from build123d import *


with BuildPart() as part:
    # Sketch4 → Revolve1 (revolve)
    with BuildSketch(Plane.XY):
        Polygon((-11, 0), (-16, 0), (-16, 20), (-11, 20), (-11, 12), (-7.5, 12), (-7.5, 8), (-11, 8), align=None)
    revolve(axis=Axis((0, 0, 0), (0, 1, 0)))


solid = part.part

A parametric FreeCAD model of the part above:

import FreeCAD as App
import Part
import Sketcher

V = App.Vector

doc = App.newDocument("Part")
params = doc.addObject("Spreadsheet::Sheet", "Params")
for row, (alias, value) in enumerate([
    ("sketch1_width", "5 mm"),
    ("sketch1_height", "8 mm"),
    ("sketch1_height2", "4 mm"),
    ("sketch1_width2", "3.5 mm"),
    ("revolution_angle", "360 deg"),
], start=1):
    params.set(f"A{row}", alias)
    params.set(f"B{row}", "=" + value)
    params.setAlias(f"B{row}", alias)

body = doc.addObject("PartDesign::Body", "Body")

sketch1 = body.newObject("Sketcher::SketchObject", "Sketch")
sketch1.AttachmentSupport = (doc.getObject("XY_Plane"), [""])
sketch1.MapMode = "FlatFace"
sketch1.addGeometry(Part.LineSegment(V(-16, 0, 0), V(-11, 0, 0)), False)
sketch1.addGeometry(Part.LineSegment(V(-11, 0, 0), V(-11, 8, 0)), False)
sketch1.addGeometry(Part.LineSegment(V(-11, 8, 0), V(-7.5, 8, 0)), False)
sketch1.addGeometry(Part.LineSegment(V(-7.5, 8, 0), V(-7.5, 12, 0)), False)
sketch1.addGeometry(Part.LineSegment(V(-7.5, 12, 0), V(-11, 12, 0)), False)
sketch1.addGeometry(Part.LineSegment(V(-11, 12, 0), V(-11, 20, 0)), False)
sketch1.addGeometry(Part.LineSegment(V(-11, 20, 0), V(-16, 20, 0)), False)
sketch1.addGeometry(Part.LineSegment(V(-16, 20, 0), V(-16, 0, 0)), False)
sketch1.addConstraint(Sketcher.Constraint("Coincident", 0, 2, 1, 1))
sketch1.addConstraint(Sketcher.Constraint("Coincident", 1, 2, 2, 1))
sketch1.addConstraint(Sketcher.Constraint("Coincident", 2, 2, 3, 1))
sketch1.addConstraint(Sketcher.Constraint("Coincident", 3, 2, 4, 1))
sketch1.addConstraint(Sketcher.Constraint("Coincident", 4, 2, 5, 1))
sketch1.addConstraint(Sketcher.Constraint("Coincident", 5, 2, 6, 1))
sketch1.addConstraint(Sketcher.Constraint("Coincident", 6, 2, 7, 1))
sketch1.addConstraint(Sketcher.Constraint("Coincident", 7, 2, 0, 1))
sketch1.addConstraint(Sketcher.Constraint("Horizontal", 0))
sketch1.addConstraint(Sketcher.Constraint("Vertical", 1))
sketch1.addConstraint(Sketcher.Constraint("Horizontal", 2))
sketch1.addConstraint(Sketcher.Constraint("Vertical", 3))
sketch1.addConstraint(Sketcher.Constraint("Horizontal", 4))
sketch1.addConstraint(Sketcher.Constraint("Vertical", 5))
sketch1.addConstraint(Sketcher.Constraint("Horizontal", 6))
sketch1.addConstraint(Sketcher.Constraint("Vertical", 7))
sketch1.addConstraint(Sketcher.Constraint("PointOnObject", 0, 2, -1))
sketch1.addConstraint(Sketcher.Constraint("Vertical", 1, 2, 4, 2))
sketch1.addConstraint(Sketcher.Constraint("Equal", 1, 5))
sketch1.addConstraint(Sketcher.Constraint("DistanceX", 0, 1, 0, 2, 5.0))
sketch1.addConstraint(Sketcher.Constraint("DistanceY", 1, 1, 1, 2, 8.0))
sketch1.addConstraint(Sketcher.Constraint("DistanceY", 3, 1, 3, 2, 4.0))
sketch1.addConstraint(Sketcher.Constraint("DistanceX", 2, 1, 2, 2, 3.5))
sketch1.addConstraint(Sketcher.Constraint("DistanceX", 0, 2, -1, 1, 11.0))
sketch1.setExpression("Constraints[19]", "Params.sketch1_width")
sketch1.setExpression("Constraints[20]", "Params.sketch1_height")
sketch1.setExpression("Constraints[21]", "Params.sketch1_height2")
sketch1.setExpression("Constraints[22]", "Params.sketch1_width2")
revolution = body.newObject("PartDesign::Revolution", "Revolution")
revolution.Profile = sketch1
revolution.ReferenceAxis = (sketch1, ["V_Axis"])
revolution.setExpression("Angle", "Params.revolution_angle")

doc.recompute()
